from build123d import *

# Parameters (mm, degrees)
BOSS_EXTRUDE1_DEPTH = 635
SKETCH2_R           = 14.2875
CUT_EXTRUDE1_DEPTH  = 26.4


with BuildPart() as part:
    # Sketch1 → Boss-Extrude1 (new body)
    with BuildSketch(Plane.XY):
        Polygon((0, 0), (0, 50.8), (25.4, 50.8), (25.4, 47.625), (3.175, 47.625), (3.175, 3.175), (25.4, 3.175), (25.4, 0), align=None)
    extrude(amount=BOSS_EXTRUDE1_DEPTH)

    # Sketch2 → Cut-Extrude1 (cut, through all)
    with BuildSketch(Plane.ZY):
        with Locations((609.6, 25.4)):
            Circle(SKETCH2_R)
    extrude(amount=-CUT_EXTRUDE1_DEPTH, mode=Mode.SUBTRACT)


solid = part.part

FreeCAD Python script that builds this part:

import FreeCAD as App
import Part
import Sketcher

V = App.Vector
Q = App.Units.Quantity

doc = App.newDocument("Part")
body = doc.addObject("PartDesign::Body", "Body")

sketch1 = body.newObject("Sketcher::SketchObject", "Sketch")
sketch1.AttachmentSupport = (doc.getObject("XY_Plane"), [""])
sketch1.MapMode = "FlatFace"
sketch1.addGeometry(Part.LineSegment(V(0, 50.8, 0), V(0, 0, 0)), False)
sketch1.addGeometry(Part.LineSegment(V(0, 0, 0), V(25.4, 0, 0)), False)
sketch1.addGeometry(Part.LineSegment(V(25.4, 0, 0), V(25.4, 3.2, 0)), False)
sketch1.addGeometry(Part.LineSegment(V(25.4, 3.2, 0), V(3.2, 3.2, 0)), False)
sketch1.addGeometry(Part.LineSegment(V(3.2, 3.2, 0), V(3.2, 47.6, 0)), False)
sketch1.addGeometry(Part.LineSegment(V(3.2, 47.6, 0), V(25.4, 47.6, 0)), False)
sketch1.addGeometry(Part.LineSegment(V(25.4, 47.6, 0), V(25.4, 50.8, 0)), False)
sketch1.addGeometry(Part.LineSegment(V(25.4, 50.8, 0), V(0, 50.8, 0)), False)
sketch1.addConstraint(Sketcher.Constraint("Coincident", 0, 2, 1, 1))
sketch1.addConstraint(Sketcher.Constraint("Coincident", 1, 2, 2, 1))
sketch1.addConstraint(Sketcher.Constraint("Coincident", 2, 2, 3, 1))
sketch1.addConstraint(Sketcher.Constraint("Coincident", 3, 2, 4, 1))
sketch1.addConstraint(Sketcher.Constraint("Coincident", 4, 2, 5, 1))
sketch1.addConstraint(Sketcher.Constraint("Coincident", 5, 2, 6, 1))
sketch1.addConstraint(Sketcher.Constraint("Coincident", 6, 2, 7, 1))
sketch1.addConstraint(Sketcher.Constraint("Coincident", 7, 2, 0, 1))
sketch1.addConstraint(Sketcher.Constraint("Vertical", 0))
sketch1.addConstraint(Sketcher.Constraint("Horizontal", 1))
sketch1.addConstraint(Sketcher.Constraint("Vertical", 2))
sketch1.addConstraint(Sketcher.Constraint("Horizontal", 3))
sketch1.addConstraint(Sketcher.Constraint("Vertical", 4))
sketch1.addConstraint(Sketcher.Constraint("Horizontal", 5))
sketch1.addConstraint(Sketcher.Constraint("Vertical", 6))
sketch1.addConstraint(Sketcher.Constraint("Horizontal", 7))
sketch1.addConstraint(Sketcher.Constraint("Coincident", 0, 2, -1, 1))
sketch1.addConstraint(Sketcher.Constraint("Vertical", 2, 2, 5, 2))
sketch1.addConstraint(Sketcher.Constraint("Equal", 2, 6))
sketch1.addConstraint(Sketcher.Constraint("DistanceX", 1, 1, 1, 2, Q("1 in")))
sketch1.addConstraint(Sketcher.Constraint("DistanceY", 0, 2, 0, 1, Q("2 in")))
sketch1.addConstraint(Sketcher.Constraint("DistanceY", 4, 1, 4, 2, Q("1.75 in")))
sketch1.addConstraint(Sketcher.Constraint("DistanceX", 3, 2, 3, 1, Q("0.875 in")))
pad1 = body.newObject("PartDesign::Pad", "Pad")
pad1.Profile = sketch1
pad1.Length = Q("25 in")

sketch2 = body.newObject("Sketcher::SketchObject", "Sketch001")
sketch2.AttachmentSupport = (doc.getObject("YZ_Plane"), [""])
sketch2.MapMode = "FlatFace"
sketch2.addGeometry(Part.Circle(V(25, 610, 0), V(0, 0, 1), 14), False)
sketch2.addConstraint(Sketcher.Constraint("Diameter", 0, Q("1.125 in")))
sketch2.addConstraint(Sketcher.Constraint("DistanceX", -1, 1, 0, 3, Q("1 in")))
sketch2.addConstraint(Sketcher.Constraint("DistanceY", -1, 1, 0, 3, Q("24 in")))
pocket1 = body.newObject("PartDesign::Pocket", "Pocket")
pocket1.Profile = sketch2
pocket1.Type = "ThroughAll"
pocket1.Reversed = True

doc.recompute()
